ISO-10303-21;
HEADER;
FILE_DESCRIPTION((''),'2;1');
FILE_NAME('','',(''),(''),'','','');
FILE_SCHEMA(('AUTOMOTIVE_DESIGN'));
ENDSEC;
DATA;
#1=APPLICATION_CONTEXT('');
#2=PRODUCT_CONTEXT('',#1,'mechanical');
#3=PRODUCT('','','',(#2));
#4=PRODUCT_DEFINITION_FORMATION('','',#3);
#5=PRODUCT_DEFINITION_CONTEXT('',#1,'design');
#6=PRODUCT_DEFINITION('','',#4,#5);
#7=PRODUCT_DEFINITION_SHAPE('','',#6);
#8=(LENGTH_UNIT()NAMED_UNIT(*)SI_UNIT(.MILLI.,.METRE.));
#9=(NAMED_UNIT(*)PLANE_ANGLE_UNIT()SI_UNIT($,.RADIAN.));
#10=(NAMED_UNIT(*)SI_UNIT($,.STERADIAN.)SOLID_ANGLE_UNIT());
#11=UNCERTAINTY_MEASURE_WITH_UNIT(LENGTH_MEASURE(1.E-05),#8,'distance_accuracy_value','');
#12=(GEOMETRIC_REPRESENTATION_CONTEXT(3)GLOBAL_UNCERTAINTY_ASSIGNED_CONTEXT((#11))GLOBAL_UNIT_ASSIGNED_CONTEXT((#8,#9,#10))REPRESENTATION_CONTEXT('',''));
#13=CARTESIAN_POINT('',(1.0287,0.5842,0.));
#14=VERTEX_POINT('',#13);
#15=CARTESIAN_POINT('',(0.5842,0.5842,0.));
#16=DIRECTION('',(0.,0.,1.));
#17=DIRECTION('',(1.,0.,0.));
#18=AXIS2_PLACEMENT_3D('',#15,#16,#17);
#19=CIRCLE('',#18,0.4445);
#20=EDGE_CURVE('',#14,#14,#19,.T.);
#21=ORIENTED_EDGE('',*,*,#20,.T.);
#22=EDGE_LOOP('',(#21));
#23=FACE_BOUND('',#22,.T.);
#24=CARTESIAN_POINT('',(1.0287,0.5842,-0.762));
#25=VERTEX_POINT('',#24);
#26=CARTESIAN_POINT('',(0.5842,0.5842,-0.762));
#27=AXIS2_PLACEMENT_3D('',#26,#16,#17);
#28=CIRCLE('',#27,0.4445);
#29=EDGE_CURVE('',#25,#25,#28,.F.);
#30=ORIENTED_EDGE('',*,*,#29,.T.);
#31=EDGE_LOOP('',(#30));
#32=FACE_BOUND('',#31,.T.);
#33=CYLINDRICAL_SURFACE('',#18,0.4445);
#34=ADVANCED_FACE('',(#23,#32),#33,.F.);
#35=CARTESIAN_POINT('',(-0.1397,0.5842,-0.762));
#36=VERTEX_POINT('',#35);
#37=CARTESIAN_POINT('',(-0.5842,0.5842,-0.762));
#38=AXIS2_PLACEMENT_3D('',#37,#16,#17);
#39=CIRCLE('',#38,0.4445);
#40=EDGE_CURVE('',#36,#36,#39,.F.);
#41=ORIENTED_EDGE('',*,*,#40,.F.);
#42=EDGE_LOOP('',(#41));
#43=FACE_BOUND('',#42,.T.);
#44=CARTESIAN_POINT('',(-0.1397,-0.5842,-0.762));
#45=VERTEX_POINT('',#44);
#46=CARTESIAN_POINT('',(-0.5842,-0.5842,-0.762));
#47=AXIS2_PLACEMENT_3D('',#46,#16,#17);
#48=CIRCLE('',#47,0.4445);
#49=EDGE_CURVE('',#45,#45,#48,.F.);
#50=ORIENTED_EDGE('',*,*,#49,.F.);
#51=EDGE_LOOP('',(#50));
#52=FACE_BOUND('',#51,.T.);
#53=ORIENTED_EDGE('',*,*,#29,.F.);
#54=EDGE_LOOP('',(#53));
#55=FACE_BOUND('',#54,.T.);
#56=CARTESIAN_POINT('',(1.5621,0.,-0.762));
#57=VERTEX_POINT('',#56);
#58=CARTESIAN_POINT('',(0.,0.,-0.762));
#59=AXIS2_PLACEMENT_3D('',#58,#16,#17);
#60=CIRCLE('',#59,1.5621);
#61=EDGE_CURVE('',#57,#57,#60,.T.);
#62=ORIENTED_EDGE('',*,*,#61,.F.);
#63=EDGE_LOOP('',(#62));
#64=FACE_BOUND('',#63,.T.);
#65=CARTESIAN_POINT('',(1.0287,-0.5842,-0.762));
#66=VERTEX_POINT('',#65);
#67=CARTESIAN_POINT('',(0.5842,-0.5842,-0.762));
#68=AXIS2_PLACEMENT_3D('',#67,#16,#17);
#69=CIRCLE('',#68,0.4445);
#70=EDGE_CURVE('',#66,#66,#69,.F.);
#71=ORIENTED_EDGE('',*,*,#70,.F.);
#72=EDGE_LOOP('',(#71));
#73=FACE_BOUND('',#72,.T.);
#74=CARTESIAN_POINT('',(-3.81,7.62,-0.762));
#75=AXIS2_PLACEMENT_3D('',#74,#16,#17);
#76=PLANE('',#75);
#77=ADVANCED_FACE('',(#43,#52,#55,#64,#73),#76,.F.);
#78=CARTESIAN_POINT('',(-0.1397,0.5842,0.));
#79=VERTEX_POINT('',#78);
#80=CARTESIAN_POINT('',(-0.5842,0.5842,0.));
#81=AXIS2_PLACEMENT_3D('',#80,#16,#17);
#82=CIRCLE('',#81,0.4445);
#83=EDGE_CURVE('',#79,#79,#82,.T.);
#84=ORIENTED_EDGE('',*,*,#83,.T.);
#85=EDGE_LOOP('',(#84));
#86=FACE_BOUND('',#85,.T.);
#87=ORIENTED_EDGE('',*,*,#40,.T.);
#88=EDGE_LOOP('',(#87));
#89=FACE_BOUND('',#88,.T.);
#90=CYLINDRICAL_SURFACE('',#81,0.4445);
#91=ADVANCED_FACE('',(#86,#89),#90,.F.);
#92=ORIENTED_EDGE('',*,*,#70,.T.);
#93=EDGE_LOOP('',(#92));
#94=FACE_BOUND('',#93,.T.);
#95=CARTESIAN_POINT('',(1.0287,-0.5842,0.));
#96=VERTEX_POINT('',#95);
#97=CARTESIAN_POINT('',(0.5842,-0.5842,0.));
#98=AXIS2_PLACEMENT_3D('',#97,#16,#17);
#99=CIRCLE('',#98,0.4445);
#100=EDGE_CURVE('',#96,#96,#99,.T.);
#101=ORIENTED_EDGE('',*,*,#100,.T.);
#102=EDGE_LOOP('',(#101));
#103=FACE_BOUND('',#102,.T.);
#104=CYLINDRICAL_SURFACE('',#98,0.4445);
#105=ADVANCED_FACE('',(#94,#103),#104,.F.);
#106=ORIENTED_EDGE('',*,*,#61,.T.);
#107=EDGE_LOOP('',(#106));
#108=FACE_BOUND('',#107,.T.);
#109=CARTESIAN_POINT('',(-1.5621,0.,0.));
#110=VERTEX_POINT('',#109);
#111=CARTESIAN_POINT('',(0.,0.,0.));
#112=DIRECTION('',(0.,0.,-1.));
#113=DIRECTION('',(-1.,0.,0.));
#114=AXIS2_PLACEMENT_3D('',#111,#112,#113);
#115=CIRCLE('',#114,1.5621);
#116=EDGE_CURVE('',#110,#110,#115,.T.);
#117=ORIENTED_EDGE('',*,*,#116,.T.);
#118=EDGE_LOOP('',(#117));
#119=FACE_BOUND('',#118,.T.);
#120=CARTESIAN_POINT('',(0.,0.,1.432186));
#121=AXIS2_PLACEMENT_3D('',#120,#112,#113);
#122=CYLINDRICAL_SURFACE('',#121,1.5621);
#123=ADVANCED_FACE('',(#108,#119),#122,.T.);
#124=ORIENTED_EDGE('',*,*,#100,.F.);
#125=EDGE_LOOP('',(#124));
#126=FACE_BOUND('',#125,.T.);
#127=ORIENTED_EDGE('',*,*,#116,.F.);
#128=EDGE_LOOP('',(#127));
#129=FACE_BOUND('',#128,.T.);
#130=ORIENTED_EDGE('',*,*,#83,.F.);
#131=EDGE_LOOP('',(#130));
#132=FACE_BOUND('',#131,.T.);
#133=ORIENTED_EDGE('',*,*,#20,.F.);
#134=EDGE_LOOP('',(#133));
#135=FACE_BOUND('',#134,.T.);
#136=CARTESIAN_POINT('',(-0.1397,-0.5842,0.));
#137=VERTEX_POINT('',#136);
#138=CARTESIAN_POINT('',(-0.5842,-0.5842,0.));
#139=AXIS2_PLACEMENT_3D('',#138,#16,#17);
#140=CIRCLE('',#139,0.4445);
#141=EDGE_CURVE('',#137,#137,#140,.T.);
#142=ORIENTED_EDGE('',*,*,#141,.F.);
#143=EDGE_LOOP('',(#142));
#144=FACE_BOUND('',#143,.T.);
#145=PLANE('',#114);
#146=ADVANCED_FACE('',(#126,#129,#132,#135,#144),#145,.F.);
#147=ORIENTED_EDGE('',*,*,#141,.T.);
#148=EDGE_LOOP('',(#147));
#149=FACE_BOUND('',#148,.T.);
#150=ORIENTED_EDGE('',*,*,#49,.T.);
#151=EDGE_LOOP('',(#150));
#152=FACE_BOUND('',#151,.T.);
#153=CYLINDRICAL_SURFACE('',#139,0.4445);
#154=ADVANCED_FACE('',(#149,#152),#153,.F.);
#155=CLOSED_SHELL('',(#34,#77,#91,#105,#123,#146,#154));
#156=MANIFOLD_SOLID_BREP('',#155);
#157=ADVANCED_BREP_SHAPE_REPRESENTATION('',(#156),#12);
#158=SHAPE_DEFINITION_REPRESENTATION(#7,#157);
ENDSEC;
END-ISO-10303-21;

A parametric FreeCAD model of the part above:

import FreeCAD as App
import Part
import Sketcher

V = App.Vector
Q = App.Units.Quantity


def add_polygon(sketch, points):
    """Adds a closed chain of lines whose ends are joined by coincident constraints."""
    first, n = sketch.GeometryCount, len(points)
    for a, b in zip(points, points[1:] + points[:1]):
        sketch.addGeometry(Part.LineSegment(App.Vector(*a, 0), App.Vector(*b, 0)), False)
    for i in range(n):
        sketch.addConstraint(Sketcher.Constraint("Coincident", first + i, 2, first + (i + 1) % n, 1))

doc = App.newDocument("Part")
body = doc.addObject("PartDesign::Body", "Body")

sketch1 = doc.addObject("Sketcher::SketchObject", "Sketch")
body.addObject(sketch1)
sketch1.AttachmentSupport = (doc.YZ_Plane, [""])
sketch1.MapMode = "FlatFace"
add_polygon(sketch1, [(1.6, 0.1), (0, 0.1), (0, -12.6), (1.6, -12.6)])
sketch1.addConstraint(Sketcher.Constraint("Horizontal", 0))
sketch1.addConstraint(Sketcher.Constraint("Vertical", 1))
sketch1.addConstraint(Sketcher.Constraint("Horizontal", 2))
sketch1.addConstraint(Sketcher.Constraint("Vertical", 3))
sketch1.addConstraint(Sketcher.Constraint("PointOnObject", 0, 2, -2))
sketch1.addConstraint(Sketcher.Constraint("DistanceY", 1, 2, 1, 1, Q("0.5 in")))
sketch1.addConstraint(Sketcher.Constraint("DistanceX", 0, 2, 0, 1, Q("0.0625 in")))
sketch1.addConstraint(Sketcher.Constraint("DistanceY", -1, 1, 0, 2, Q("0.004 in")))
revolution = doc.addObject("PartDesign::Revolution", "Revolution")
body.addObject(revolution)
revolution.Profile = sketch1
revolution.ReferenceAxis = (sketch1, ["V_Axis"])
revolution.Angle = 360

sketch2 = doc.addObject("Sketcher::SketchObject", "Sketch001")
body.addObject(sketch2)
sketch2.AttachmentSupport = (doc.YZ_Plane, [""])
sketch2.MapMode = "FlatFace"
add_polygon(sketch2, [(0, 0), (1.6, 0), (1.6, -4.4), (2.4, -5.3), (2.4, 1.4), (0, 1.4)])
sketch2.addConstraint(Sketcher.Constraint("Horizontal", 0))
sketch2.addConstraint(Sketcher.Constraint("Vertical", 1))
sketch2.addConstraint(Sketcher.Constraint("Vertical", 3))
sketch2.addConstraint(Sketcher.Constraint("Horizontal", 4))
sketch2.addConstraint(Sketcher.Constraint("Vertical", 5))
sketch2.addConstraint(Sketcher.Constraint("Coincident", 5, 2, -1, 1))
sketch2.addConstraint(Sketcher.Constraint("Angle", 2, Q("-45 deg")))
sketch2.addConstraint(Sketcher.Constraint("DistanceX", 0, 1, 0, 2, Q("0.0615 in")))
sketch2.addConstraint(Sketcher.Constraint("DistanceY", 1, 2, 1, 1, Q("4.441482 mm")))
sketch2.addConstraint(Sketcher.Constraint("Distance", 2, Q("1.235041 mm")))
sketch2.addConstraint(Sketcher.Constraint("DistanceY", 3, 1, 3, 2, Q("6.746974 mm")))
groove = doc.addObject("PartDesign::Groove", "Groove")
body.addObject(groove)
groove.Profile = sketch2
groove.ReferenceAxis = (sketch2, ["V_Axis"])
groove.Angle = 360

sketch3 = doc.addObject("Sketcher::SketchObject", "Sketch002")
body.addObject(sketch3)
sketch3.AttachmentSupport = (doc.XY_Plane, [""])
sketch3.MapMode = "FlatFace"
sketch3.addGeometry(Part.Circle(V(0.58, 0.58, 0), V(0, 0, 1), 0.44), False)
sketch3.addGeometry(Part.Circle(V(-0.58, 0.58, 0), V(0, 0, 1), 0.44), False)
sketch3.addGeometry(Part.Circle(V(-0.58, -0.58, 0), V(0, 0, 1), 0.44), False)
sketch3.addGeometry(Part.Circle(V(0.58, -0.58, 0), V(0, 0, 1), 0.44), False)
sketch3.addConstraint(Sketcher.Constraint("Equal", 0, 1))
sketch3.addConstraint(Sketcher.Constraint("Equal", 1, 2))
sketch3.addConstraint(Sketcher.Constraint("Equal", 2, 3))
sketch3.addConstraint(Sketcher.Constraint("Symmetric", 0, 3, 2, 3, -1, 1))
sketch3.addConstraint(Sketcher.Constraint("Symmetric", 1, 3, 3, 3, -1, 1))
sketch3.addConstraint(Sketcher.Constraint("Symmetric", 0, 3, 1, 3, -2))
sketch3.addConstraint(Sketcher.Constraint("Diameter", 0, Q("0.035 in")))
sketch3.addConstraint(Sketcher.Constraint("DistanceX", -1, 1, 0, 3, Q("0.023 in")))
sketch3.addConstraint(Sketcher.Constraint("DistanceY", -1, 1, 0, 3, Q("0.023 in")))
doc.recompute()
hole = doc.addObject("PartDesign::Hole", "Hole")
body.addObject(hole)
hole.Profile = sketch3
hole.ThreadType = "None"
hole.Diameter = Q("0.035 in")
hole.DepthType = "Dimension"
hole.Depth = Q("0.375 in")
hole.DrillPoint = "Angled"
hole.DrillPointAngle = 118

sketch4 = doc.addObject("Sketcher::SketchObject", "Sketch003")
body.addObject(sketch4)
sketch4.AttachmentSupport = (doc.YZ_Plane, [""])
sketch4.MapMode = "FlatFace"
add_polygon(sketch4, [(8, -1), (-8, -1), (-8, -16), (8, -16)])
sketch4.addConstraint(Sketcher.Constraint("Horizontal", 0))
sketch4.addConstraint(Sketcher.Constraint("Vertical", 1))
sketch4.addConstraint(Sketcher.Constraint("Horizontal", 2))
sketch4.addConstraint(Sketcher.Constraint("Vertical", 3))
sketch4.addConstraint(Sketcher.Constraint("Equal", 2, 1))
sketch4.addConstraint(Sketcher.Constraint("DistanceX", 0, 2, 0, 1, Q("0.6 in")))
sketch4.addConstraint(Sketcher.Constraint("DistanceX", 0, 2, -1, 1, Q("0.3 in")))
sketch4.addConstraint(Sketcher.Constraint("DistanceY", 0, 2, -1, 1, Q("0.03 in")))
pocket1 = doc.addObject("PartDesign::Pocket", "Pocket")
body.addObject(pocket1)
pocket1.Profile = sketch4
pocket1.Length = Q("0.3 in")
pocket1.Midplane = True

doc.recompute()
